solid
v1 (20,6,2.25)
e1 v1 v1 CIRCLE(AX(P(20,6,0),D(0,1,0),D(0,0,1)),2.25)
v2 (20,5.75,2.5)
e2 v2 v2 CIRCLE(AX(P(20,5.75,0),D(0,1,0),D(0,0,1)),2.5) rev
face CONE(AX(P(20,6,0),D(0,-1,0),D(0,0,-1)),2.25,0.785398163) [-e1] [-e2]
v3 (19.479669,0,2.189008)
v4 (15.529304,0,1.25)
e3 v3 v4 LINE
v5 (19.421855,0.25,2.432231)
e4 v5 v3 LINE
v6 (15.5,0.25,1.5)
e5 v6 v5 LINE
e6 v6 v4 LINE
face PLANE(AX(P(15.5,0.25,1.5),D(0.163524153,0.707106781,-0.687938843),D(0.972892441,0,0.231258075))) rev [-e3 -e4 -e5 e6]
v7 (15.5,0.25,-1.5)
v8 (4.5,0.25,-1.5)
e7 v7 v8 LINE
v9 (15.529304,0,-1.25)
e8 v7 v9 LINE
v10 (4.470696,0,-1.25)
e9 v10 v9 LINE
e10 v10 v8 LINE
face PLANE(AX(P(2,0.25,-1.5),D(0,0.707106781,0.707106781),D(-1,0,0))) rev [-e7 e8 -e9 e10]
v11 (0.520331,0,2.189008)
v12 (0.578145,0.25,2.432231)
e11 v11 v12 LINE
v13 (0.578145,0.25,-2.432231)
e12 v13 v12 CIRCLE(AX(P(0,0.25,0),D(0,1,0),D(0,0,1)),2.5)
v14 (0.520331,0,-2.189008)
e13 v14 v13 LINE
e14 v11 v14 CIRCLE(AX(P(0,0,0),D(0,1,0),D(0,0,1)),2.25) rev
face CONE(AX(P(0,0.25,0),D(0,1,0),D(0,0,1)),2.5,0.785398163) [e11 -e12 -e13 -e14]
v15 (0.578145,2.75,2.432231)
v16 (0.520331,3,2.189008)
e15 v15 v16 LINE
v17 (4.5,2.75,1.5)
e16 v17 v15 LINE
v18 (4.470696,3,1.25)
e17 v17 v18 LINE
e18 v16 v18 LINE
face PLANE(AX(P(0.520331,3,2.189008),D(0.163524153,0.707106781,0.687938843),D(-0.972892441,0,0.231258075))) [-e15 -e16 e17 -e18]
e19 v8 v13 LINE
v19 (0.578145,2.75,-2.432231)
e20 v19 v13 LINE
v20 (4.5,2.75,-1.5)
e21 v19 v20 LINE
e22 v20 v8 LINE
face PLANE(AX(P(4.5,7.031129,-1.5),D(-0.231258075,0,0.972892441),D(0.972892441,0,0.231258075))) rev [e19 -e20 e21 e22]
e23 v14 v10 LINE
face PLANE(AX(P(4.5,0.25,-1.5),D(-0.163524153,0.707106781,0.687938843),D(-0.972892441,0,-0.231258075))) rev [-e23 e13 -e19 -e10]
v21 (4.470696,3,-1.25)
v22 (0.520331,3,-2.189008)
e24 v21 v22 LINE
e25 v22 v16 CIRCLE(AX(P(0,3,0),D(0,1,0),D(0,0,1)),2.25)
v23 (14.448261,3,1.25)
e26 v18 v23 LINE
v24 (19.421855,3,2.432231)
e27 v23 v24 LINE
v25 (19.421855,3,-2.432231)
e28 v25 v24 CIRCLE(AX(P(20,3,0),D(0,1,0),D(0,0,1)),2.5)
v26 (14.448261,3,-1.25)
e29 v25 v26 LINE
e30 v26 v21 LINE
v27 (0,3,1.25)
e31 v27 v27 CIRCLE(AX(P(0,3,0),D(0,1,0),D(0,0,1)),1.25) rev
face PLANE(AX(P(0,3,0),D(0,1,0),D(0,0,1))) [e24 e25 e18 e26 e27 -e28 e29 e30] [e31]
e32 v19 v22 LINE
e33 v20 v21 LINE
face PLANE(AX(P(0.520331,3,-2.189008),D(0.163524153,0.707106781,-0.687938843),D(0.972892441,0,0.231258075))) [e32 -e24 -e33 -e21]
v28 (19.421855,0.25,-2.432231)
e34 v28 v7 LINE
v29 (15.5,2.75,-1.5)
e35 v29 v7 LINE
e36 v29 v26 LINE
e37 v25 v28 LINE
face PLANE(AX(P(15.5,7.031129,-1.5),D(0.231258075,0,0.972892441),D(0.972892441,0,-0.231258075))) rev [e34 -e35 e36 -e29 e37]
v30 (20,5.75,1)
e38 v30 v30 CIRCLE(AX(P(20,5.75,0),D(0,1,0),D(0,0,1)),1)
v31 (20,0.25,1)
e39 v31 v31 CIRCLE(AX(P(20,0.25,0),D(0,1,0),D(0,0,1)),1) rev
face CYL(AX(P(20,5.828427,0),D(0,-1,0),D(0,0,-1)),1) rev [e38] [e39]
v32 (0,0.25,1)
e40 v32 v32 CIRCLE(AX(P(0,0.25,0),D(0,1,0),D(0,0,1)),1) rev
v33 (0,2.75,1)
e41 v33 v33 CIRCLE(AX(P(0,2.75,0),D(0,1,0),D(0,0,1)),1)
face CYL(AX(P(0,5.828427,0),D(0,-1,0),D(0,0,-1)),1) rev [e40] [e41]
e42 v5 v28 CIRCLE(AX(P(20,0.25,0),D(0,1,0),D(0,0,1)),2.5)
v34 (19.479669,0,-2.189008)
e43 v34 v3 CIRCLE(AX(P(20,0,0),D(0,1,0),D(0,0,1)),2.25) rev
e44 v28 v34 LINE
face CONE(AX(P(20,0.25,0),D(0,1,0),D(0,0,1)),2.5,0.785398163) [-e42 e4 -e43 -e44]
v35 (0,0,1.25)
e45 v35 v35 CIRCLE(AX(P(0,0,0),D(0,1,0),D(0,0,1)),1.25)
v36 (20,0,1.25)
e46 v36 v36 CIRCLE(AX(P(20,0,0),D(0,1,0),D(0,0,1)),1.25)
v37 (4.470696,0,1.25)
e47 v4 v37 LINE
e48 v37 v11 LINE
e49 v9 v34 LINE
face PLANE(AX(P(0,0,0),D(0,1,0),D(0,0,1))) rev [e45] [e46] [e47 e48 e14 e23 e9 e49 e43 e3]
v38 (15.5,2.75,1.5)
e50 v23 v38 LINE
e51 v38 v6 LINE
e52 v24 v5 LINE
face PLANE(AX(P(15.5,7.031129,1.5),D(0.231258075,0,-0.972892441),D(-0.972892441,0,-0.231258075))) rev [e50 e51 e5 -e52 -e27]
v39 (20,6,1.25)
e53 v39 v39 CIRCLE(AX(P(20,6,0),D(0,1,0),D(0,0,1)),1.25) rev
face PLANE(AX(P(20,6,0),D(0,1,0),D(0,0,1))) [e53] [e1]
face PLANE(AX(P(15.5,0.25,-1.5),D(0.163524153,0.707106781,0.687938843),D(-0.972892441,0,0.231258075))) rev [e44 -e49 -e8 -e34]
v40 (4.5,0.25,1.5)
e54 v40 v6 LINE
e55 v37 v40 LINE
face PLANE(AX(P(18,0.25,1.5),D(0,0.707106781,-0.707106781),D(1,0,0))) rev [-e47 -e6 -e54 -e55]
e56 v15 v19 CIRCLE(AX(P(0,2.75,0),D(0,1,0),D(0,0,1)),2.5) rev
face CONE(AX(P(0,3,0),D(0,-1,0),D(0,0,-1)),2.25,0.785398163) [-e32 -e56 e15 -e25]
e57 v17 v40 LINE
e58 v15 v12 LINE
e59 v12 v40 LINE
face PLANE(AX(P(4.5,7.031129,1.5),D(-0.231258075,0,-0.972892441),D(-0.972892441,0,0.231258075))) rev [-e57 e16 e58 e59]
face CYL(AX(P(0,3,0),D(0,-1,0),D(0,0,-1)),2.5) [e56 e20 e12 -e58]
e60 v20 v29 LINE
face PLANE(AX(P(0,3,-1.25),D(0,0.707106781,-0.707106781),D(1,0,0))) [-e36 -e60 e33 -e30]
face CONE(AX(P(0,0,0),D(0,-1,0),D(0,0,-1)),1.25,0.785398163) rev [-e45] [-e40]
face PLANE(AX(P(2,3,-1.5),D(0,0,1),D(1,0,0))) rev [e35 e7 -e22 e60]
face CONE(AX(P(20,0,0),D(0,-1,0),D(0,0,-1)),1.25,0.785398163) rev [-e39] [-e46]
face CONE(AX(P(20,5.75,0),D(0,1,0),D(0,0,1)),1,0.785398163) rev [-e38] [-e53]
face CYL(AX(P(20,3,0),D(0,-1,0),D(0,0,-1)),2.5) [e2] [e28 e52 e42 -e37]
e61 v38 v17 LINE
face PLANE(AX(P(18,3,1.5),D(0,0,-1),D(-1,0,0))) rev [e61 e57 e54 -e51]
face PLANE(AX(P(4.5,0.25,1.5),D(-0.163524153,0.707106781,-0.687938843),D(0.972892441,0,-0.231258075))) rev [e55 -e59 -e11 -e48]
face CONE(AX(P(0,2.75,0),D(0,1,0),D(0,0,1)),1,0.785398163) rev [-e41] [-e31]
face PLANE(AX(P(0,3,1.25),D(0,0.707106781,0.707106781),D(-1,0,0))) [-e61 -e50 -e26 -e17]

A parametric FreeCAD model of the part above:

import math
import FreeCAD as App
import Part
import Sketcher
from FreeCAD import Vector


def edges_at(feature, points):
    """Names of the edges that pass closest to the given points."""
    edges = feature.Shape.Edges
    near = lambda p: min(range(len(edges)), key=lambda i: edges[i].distToShape(Part.Vertex(*p))[0])
    return sorted({f"Edge{near(p) + 1}" for p in points})

doc = App.newDocument("Part")
body = doc.addObject("PartDesign::Body", "Body")

sketch1 = body.newObject("Sketcher::SketchObject", "Sketch")
sketch1.AttachmentSupport = (doc.getObject("XZ_Plane"), [""])
sketch1.MapMode = "FlatFace"
sketch1.addGeometry([
    Part.LineSegment(Vector(18, -1.5, 0), Vector(2, -1.5, 0)),
    Part.ArcOfCircle(Part.Circle(Vector(0, 0, 0), Vector(0, 0, 1), 2.5), math.radians(36.869898), math.radians(323.130102)),
    Part.LineSegment(Vector(2, 1.5, 0), Vector(18, 1.5, 0)),
    Part.ArcOfCircle(Part.Circle(Vector(20, 0, 0), Vector(0, 0, 1), 2.5), math.radians(-143.130102), math.radians(143.130102)),
], False)
sketch1.addConstraint([
    Sketcher.Constraint("Coincident", 0, 2, 1, 2),
    Sketcher.Constraint("Coincident", 1, 1, 2, 1),
    Sketcher.Constraint("Coincident", 2, 2, 3, 2),
    Sketcher.Constraint("Coincident", 3, 1, 0, 1),
    Sketcher.Constraint("Horizontal", 0),
    Sketcher.Constraint("Horizontal", 2),
    Sketcher.Constraint("Coincident", 1, 3, -1, 1),
    Sketcher.Constraint("Equal", 1, 3),
    Sketcher.Constraint("Symmetric", 2, 2, 3, 1, -1),
    Sketcher.Constraint("Radius", 1, 2.5),
    Sketcher.Constraint("DistanceX", 0, 2, 0, 1, 16.0),
    Sketcher.Constraint("DistanceX", -1, 1, 3, 3, 20.0),
])
pad1 = body.newObject("PartDesign::Pad", "Pad")
pad1.Profile = sketch1
pad1.Length = 3
pad1.Reversed = True

sketch2 = body.newObject("Sketcher::SketchObject", "Sketch001")
sketch2.AttachmentSupport = (doc.getObject("XZ_Plane"), [""])
sketch2.MapMode = "FlatFace"
sketch2.addGeometry([
    Part.Circle(Vector(0, 0, 0), Vector(0, 0, 1), 1),
    Part.Circle(Vector(20, 0, 0), Vector(0, 0, 1), 1),
], False)
sketch2.addConstraint([
    Sketcher.Constraint("Coincident", 0, 3, -1, 1),
    Sketcher.Constraint("Equal", 0, 1),
    Sketcher.Constraint("PointOnObject", 1, 3, -1),
    Sketcher.Constraint("Diameter", 0, 2.0),
    Sketcher.Constraint("DistanceX", -1, 1, 1, 3, 20.0),
])
pocket1 = body.newObject("PartDesign::Pocket", "Pocket")
pocket1.Profile = sketch2
pocket1.Length = 3

sketch3 = body.newObject("Sketcher::SketchObject", "Sketch002")
sketch3.AttachmentSupport = (doc.getObject("XZ_Plane"), [""])
sketch3.MapMode = "FlatFace"
sketch3.addGeometry([
    Part.LineSegment(Vector(4.5, -1.5, 0), Vector(0.578145, -2.432231, 0)),
    Part.ArcOfCircle(Part.Circle(Vector(0, 0, 0), Vector(0, 0, 1), 2.5), math.radians(-76.628849), math.radians(-36.869898)),
    Part.LineSegment(Vector(2, -1.5, 0), Vector(4.5, -1.5, 0)),
    Part.LineSegment(Vector(0.578145, 2.432231, 0), Vector(4.5, 1.5, 0)),
    Part.LineSegment(Vector(4.5, 1.5, 0), Vector(2, 1.5, 0)),
    Part.ArcOfCircle(Part.Circle(Vector(0, 0, 0), Vector(0, 0, 1), 2.5), math.radians(36.869898), math.radians(76.628849)),
    Part.LineSegment(Vector(15.5, -1.5, 0), Vector(18, -1.5, 0)),
    Part.ArcOfCircle(Part.Circle(Vector(20, 0, 0), Vector(0, 0, 1), 2.5), math.radians(-143.130102), math.radians(-103.371151)),
    Part.LineSegment(Vector(19.421855, -2.432231, 0), Vector(15.5, -1.5, 0)),
    Part.LineSegment(Vector(15.5, 1.5, 0), Vector(19.421855, 2.432231, 0)),
    Part.ArcOfCircle(Part.Circle(Vector(20, 0, 0), Vector(0, 0, 1), 2.5), math.radians(103.371151), math.radians(143.130102)),
    Part.LineSegment(Vector(18, 1.5, 0), Vector(15.5, 1.5, 0)),
], False)
sketch3.addConstraint([
    Sketcher.Constraint("Tangent", 0, 2, 1, 1),
    Sketcher.Constraint("Coincident", 1, 2, 2, 1),
    Sketcher.Constraint("Coincident", 2, 2, 0, 1),
    Sketcher.Constraint("Coincident", 3, 2, 4, 1),
    Sketcher.Constraint("Coincident", 4, 2, 5, 1),
    Sketcher.Constraint("Tangent", 5, 2, 3, 1),
    Sketcher.Constraint("Coincident", 6, 2, 7, 1),
    Sketcher.Constraint("Tangent", 7, 2, 8, 1),
    Sketcher.Constraint("Coincident", 8, 2, 6, 1),
    Sketcher.Constraint("Tangent", 9, 2, 10, 1),
    Sketcher.Constraint("Coincident", 10, 2, 11, 1),
    Sketcher.Constraint("Coincident", 11, 2, 9, 1),
    Sketcher.Constraint("Horizontal", 2),
    Sketcher.Constraint("Horizontal", 4),
    Sketcher.Constraint("Horizontal", 6),
    Sketcher.Constraint("Horizontal", 11),
    Sketcher.Constraint("Coincident", 1, 3, -1, 1),
    Sketcher.Constraint("Coincident", 5, 3, -1, 1),
    Sketcher.Constraint("Coincident", 10, 3, 7, 3),
    Sketcher.Constraint("Equal", 1, 5),
    Sketcher.Constraint("Equal", 5, 7),
    Sketcher.Constraint("Equal", 7, 10),
    Sketcher.Constraint("Symmetric", 2, 2, 3, 2, -1),
    Sketcher.Constraint("Symmetric", 7, 2, 9, 2, -1),
    Sketcher.Constraint("Parallel", 3, 8),
    Sketcher.Constraint("Horizontal", 2, 2, 6, 2),
    Sketcher.Constraint("Horizontal", 4, 2, 10, 2),
    Sketcher.Constraint("Radius", 1, 2.5),
    Sketcher.Constraint("DistanceX", 2, 1, 2, 2, 2.5),
    Sketcher.Constraint("DistanceX", -1, 1, 7, 3, 20.0),
    Sketcher.Constraint("DistanceX", -1, 1, 1, 2, 2.0),
])
pad2 = body.newObject("PartDesign::Pad", "Pad001")
pad2.Profile = sketch3
pad2.Length = 3
pad2.Reversed = True
doc.recompute()

chamfer = body.newObject("PartDesign::Chamfer", "Chamfer")
chamfer.Base = (pad2, edges_at(pad2, [
    (0, 0, -1),
    (20, 0, -1),
    (-2.5, 0, 0),
    (2.539, 0, -1.966),
    (10, 0, 1.5),
    (2.539, 0, 1.966),
    (22.5, 0, 0),
    (17.461, 0, 1.966),
    (10, 0, -1.5),
    (17.461, 0, -1.966),
]))
chamfer.Size = 0.25

sketch4 = body.newObject("Sketcher::SketchObject", "Sketch003")
sketch4.AttachmentSupport = (doc.getObject("XZ_Plane"), [""])
sketch4.MapMode = "FlatFace"
sketch4.AttachmentOffset = App.Placement(Vector(0, 0, -3), App.Rotation())
sketch4.addGeometry([
    Part.Circle(Vector(20, 0, 0), Vector(0, 0, 1), 2.5),
    Part.Circle(Vector(20, 0, 0), Vector(0, 0, 1), 1),
], False)
sketch4.addConstraint([
    Sketcher.Constraint("Coincident", 1, 3, 0, 3),
    Sketcher.Constraint("PointOnObject", 0, 3, -1),
    Sketcher.Constraint("Diameter", 0, 5.0),
    Sketcher.Constraint("Diameter", 1, 2.0),
    Sketcher.Constraint("DistanceX", -1, 1, 0, 3, 20.0),
])
pad3 = body.newObject("PartDesign::Pad", "Pad002")
pad3.Profile = sketch4
pad3.Length = 3
pad3.Reversed = True
doc.recompute()

chamfer2 = body.newObject("PartDesign::Chamfer", "Chamfer001")
chamfer2.Base = (pad3, edges_at(pad3, [
    (0, 3, -1),
    (-2.5, 3, 0),
    (2.539, 3, -1.966),
    (10, 3, 1.5),
    (2.539, 3, 1.966),
    (10, 3, -1.5),
    (20.578, 6, 2.432),
    (20, 6, -1),
]))
chamfer2.Size = 0.25

doc.recompute()
